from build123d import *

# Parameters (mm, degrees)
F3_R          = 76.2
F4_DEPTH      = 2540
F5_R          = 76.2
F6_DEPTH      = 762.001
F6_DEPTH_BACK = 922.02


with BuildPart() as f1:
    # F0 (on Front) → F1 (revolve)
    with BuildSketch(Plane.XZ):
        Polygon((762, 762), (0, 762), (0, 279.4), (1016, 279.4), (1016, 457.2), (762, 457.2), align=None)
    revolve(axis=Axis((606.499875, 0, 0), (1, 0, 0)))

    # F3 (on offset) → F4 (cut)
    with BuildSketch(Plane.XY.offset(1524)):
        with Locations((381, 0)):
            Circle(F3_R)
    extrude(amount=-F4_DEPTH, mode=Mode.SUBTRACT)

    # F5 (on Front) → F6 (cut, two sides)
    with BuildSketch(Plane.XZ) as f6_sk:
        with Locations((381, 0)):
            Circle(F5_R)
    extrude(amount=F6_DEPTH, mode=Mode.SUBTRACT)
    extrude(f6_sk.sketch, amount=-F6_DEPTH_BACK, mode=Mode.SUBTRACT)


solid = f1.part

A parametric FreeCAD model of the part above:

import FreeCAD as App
import Part
import Sketcher
from FreeCAD import Vector
Q = App.Units.Quantity

doc = App.newDocument("Part")
body = doc.addObject("PartDesign::Body", "Body")

# Sketch on XZ plane
sketch1 = body.newObject("Sketcher::SketchObject", "Sketch")
sketch1.AttachmentSupport = (doc.getObject("XZ_Plane"), [""])
sketch1.MapMode = "FlatFace"
sketch1.addGeometry(Part.LineSegment(Vector(762, 762, 0), Vector(0, 762, 0)), False)
sketch1.addGeometry(Part.LineSegment(Vector(0, 762, 0), Vector(0, 279, 0)), False)
sketch1.addGeometry(Part.LineSegment(Vector(0, 279, 0), Vector(1016, 279, 0)), False)
sketch1.addGeometry(Part.LineSegment(Vector(1016, 279, 0), Vector(1016, 457, 0)), False)
sketch1.addGeometry(Part.LineSegment(Vector(1016, 457, 0), Vector(762, 457, 0)), False)
sketch1.addGeometry(Part.LineSegment(Vector(762, 457, 0), Vector(762, 762, 0)), False)
sketch1.addConstraint(Sketcher.Constraint("Coincident", 0, 2, 1, 1))
sketch1.addConstraint(Sketcher.Constraint("Coincident", 1, 2, 2, 1))
sketch1.addConstraint(Sketcher.Constraint("Coincident", 2, 2, 3, 1))
sketch1.addConstraint(Sketcher.Constraint("Coincident", 3, 2, 4, 1))
sketch1.addConstraint(Sketcher.Constraint("Coincident", 4, 2, 5, 1))
sketch1.addConstraint(Sketcher.Constraint("Coincident", 5, 2, 0, 1))
sketch1.addConstraint(Sketcher.Constraint("Horizontal", 0))
sketch1.addConstraint(Sketcher.Constraint("Vertical", 1))
sketch1.addConstraint(Sketcher.Constraint("Horizontal", 2))
sketch1.addConstraint(Sketcher.Constraint("Vertical", 3))
sketch1.addConstraint(Sketcher.Constraint("Horizontal", 4))
sketch1.addConstraint(Sketcher.Constraint("Vertical", 5))
sketch1.addConstraint(Sketcher.Constraint("PointOnObject", 0, 2, -2))
sketch1.addConstraint(Sketcher.Constraint("DistanceX", 0, 2, 0, 1, Q("30 in")))
sketch1.addConstraint(Sketcher.Constraint("DistanceX", 2, 1, 2, 2, Q("40 in")))
sketch1.addConstraint(Sketcher.Constraint("DistanceY", 1, 2, 1, 1, Q("19 in")))
sketch1.addConstraint(Sketcher.Constraint("DistanceY", 3, 1, 3, 2, Q("7 in")))
sketch1.addConstraint(Sketcher.Constraint("DistanceY", -1, 1, 0, 2, Q("30 in")))
revolution = body.newObject("PartDesign::Revolution", "Revolution")
revolution.Profile = sketch1
revolution.ReferenceAxis = (sketch1, ["H_Axis"])
revolution.Angle = 360

# Sketch on XY plane
sketch2 = body.newObject("Sketcher::SketchObject", "Sketch001")
sketch2.AttachmentSupport = (doc.getObject("XY_Plane"), [""])
sketch2.MapMode = "FlatFace"
sketch2.AttachmentOffset = App.Placement(Vector(0, 0, 60 * 25.4), App.Rotation())
sketch2.addGeometry(Part.Circle(Vector(381, 0, 0), Vector(0, 0, 1), 76), False)
sketch2.addConstraint(Sketcher.Constraint("PointOnObject", 0, 3, -1))
sketch2.addConstraint(Sketcher.Constraint("Diameter", 0, Q("6 in")))
sketch2.addConstraint(Sketcher.Constraint("DistanceX", -1, 1, 0, 3, Q("15 in")))
pocket1 = body.newObject("PartDesign::Pocket", "Pocket")
pocket1.Profile = sketch2
pocket1.Length = Q("100 in")

# Sketch on XZ plane
sketch3 = body.newObject("Sketcher::SketchObject", "Sketch002")
sketch3.AttachmentSupport = (doc.getObject("XZ_Plane"), [""])
sketch3.MapMode = "FlatFace"
sketch3.addGeometry(Part.Circle(Vector(381, 0, 0), Vector(0, 0, 1), 76), False)
sketch3.addConstraint(Sketcher.Constraint("PointOnObject", 0, 3, -1))
sketch3.addConstraint(Sketcher.Constraint("Diameter", 0, Q("6 in")))
sketch3.addConstraint(Sketcher.Constraint("DistanceX", -1, 1, 0, 3, Q("15 in")))
pocket2 = body.newObject("PartDesign::Pocket", "Pocket001")
pocket2.Profile = sketch3
pocket2.Type = "ThroughAll"
pocket2.Midplane = True

doc.recompute()
